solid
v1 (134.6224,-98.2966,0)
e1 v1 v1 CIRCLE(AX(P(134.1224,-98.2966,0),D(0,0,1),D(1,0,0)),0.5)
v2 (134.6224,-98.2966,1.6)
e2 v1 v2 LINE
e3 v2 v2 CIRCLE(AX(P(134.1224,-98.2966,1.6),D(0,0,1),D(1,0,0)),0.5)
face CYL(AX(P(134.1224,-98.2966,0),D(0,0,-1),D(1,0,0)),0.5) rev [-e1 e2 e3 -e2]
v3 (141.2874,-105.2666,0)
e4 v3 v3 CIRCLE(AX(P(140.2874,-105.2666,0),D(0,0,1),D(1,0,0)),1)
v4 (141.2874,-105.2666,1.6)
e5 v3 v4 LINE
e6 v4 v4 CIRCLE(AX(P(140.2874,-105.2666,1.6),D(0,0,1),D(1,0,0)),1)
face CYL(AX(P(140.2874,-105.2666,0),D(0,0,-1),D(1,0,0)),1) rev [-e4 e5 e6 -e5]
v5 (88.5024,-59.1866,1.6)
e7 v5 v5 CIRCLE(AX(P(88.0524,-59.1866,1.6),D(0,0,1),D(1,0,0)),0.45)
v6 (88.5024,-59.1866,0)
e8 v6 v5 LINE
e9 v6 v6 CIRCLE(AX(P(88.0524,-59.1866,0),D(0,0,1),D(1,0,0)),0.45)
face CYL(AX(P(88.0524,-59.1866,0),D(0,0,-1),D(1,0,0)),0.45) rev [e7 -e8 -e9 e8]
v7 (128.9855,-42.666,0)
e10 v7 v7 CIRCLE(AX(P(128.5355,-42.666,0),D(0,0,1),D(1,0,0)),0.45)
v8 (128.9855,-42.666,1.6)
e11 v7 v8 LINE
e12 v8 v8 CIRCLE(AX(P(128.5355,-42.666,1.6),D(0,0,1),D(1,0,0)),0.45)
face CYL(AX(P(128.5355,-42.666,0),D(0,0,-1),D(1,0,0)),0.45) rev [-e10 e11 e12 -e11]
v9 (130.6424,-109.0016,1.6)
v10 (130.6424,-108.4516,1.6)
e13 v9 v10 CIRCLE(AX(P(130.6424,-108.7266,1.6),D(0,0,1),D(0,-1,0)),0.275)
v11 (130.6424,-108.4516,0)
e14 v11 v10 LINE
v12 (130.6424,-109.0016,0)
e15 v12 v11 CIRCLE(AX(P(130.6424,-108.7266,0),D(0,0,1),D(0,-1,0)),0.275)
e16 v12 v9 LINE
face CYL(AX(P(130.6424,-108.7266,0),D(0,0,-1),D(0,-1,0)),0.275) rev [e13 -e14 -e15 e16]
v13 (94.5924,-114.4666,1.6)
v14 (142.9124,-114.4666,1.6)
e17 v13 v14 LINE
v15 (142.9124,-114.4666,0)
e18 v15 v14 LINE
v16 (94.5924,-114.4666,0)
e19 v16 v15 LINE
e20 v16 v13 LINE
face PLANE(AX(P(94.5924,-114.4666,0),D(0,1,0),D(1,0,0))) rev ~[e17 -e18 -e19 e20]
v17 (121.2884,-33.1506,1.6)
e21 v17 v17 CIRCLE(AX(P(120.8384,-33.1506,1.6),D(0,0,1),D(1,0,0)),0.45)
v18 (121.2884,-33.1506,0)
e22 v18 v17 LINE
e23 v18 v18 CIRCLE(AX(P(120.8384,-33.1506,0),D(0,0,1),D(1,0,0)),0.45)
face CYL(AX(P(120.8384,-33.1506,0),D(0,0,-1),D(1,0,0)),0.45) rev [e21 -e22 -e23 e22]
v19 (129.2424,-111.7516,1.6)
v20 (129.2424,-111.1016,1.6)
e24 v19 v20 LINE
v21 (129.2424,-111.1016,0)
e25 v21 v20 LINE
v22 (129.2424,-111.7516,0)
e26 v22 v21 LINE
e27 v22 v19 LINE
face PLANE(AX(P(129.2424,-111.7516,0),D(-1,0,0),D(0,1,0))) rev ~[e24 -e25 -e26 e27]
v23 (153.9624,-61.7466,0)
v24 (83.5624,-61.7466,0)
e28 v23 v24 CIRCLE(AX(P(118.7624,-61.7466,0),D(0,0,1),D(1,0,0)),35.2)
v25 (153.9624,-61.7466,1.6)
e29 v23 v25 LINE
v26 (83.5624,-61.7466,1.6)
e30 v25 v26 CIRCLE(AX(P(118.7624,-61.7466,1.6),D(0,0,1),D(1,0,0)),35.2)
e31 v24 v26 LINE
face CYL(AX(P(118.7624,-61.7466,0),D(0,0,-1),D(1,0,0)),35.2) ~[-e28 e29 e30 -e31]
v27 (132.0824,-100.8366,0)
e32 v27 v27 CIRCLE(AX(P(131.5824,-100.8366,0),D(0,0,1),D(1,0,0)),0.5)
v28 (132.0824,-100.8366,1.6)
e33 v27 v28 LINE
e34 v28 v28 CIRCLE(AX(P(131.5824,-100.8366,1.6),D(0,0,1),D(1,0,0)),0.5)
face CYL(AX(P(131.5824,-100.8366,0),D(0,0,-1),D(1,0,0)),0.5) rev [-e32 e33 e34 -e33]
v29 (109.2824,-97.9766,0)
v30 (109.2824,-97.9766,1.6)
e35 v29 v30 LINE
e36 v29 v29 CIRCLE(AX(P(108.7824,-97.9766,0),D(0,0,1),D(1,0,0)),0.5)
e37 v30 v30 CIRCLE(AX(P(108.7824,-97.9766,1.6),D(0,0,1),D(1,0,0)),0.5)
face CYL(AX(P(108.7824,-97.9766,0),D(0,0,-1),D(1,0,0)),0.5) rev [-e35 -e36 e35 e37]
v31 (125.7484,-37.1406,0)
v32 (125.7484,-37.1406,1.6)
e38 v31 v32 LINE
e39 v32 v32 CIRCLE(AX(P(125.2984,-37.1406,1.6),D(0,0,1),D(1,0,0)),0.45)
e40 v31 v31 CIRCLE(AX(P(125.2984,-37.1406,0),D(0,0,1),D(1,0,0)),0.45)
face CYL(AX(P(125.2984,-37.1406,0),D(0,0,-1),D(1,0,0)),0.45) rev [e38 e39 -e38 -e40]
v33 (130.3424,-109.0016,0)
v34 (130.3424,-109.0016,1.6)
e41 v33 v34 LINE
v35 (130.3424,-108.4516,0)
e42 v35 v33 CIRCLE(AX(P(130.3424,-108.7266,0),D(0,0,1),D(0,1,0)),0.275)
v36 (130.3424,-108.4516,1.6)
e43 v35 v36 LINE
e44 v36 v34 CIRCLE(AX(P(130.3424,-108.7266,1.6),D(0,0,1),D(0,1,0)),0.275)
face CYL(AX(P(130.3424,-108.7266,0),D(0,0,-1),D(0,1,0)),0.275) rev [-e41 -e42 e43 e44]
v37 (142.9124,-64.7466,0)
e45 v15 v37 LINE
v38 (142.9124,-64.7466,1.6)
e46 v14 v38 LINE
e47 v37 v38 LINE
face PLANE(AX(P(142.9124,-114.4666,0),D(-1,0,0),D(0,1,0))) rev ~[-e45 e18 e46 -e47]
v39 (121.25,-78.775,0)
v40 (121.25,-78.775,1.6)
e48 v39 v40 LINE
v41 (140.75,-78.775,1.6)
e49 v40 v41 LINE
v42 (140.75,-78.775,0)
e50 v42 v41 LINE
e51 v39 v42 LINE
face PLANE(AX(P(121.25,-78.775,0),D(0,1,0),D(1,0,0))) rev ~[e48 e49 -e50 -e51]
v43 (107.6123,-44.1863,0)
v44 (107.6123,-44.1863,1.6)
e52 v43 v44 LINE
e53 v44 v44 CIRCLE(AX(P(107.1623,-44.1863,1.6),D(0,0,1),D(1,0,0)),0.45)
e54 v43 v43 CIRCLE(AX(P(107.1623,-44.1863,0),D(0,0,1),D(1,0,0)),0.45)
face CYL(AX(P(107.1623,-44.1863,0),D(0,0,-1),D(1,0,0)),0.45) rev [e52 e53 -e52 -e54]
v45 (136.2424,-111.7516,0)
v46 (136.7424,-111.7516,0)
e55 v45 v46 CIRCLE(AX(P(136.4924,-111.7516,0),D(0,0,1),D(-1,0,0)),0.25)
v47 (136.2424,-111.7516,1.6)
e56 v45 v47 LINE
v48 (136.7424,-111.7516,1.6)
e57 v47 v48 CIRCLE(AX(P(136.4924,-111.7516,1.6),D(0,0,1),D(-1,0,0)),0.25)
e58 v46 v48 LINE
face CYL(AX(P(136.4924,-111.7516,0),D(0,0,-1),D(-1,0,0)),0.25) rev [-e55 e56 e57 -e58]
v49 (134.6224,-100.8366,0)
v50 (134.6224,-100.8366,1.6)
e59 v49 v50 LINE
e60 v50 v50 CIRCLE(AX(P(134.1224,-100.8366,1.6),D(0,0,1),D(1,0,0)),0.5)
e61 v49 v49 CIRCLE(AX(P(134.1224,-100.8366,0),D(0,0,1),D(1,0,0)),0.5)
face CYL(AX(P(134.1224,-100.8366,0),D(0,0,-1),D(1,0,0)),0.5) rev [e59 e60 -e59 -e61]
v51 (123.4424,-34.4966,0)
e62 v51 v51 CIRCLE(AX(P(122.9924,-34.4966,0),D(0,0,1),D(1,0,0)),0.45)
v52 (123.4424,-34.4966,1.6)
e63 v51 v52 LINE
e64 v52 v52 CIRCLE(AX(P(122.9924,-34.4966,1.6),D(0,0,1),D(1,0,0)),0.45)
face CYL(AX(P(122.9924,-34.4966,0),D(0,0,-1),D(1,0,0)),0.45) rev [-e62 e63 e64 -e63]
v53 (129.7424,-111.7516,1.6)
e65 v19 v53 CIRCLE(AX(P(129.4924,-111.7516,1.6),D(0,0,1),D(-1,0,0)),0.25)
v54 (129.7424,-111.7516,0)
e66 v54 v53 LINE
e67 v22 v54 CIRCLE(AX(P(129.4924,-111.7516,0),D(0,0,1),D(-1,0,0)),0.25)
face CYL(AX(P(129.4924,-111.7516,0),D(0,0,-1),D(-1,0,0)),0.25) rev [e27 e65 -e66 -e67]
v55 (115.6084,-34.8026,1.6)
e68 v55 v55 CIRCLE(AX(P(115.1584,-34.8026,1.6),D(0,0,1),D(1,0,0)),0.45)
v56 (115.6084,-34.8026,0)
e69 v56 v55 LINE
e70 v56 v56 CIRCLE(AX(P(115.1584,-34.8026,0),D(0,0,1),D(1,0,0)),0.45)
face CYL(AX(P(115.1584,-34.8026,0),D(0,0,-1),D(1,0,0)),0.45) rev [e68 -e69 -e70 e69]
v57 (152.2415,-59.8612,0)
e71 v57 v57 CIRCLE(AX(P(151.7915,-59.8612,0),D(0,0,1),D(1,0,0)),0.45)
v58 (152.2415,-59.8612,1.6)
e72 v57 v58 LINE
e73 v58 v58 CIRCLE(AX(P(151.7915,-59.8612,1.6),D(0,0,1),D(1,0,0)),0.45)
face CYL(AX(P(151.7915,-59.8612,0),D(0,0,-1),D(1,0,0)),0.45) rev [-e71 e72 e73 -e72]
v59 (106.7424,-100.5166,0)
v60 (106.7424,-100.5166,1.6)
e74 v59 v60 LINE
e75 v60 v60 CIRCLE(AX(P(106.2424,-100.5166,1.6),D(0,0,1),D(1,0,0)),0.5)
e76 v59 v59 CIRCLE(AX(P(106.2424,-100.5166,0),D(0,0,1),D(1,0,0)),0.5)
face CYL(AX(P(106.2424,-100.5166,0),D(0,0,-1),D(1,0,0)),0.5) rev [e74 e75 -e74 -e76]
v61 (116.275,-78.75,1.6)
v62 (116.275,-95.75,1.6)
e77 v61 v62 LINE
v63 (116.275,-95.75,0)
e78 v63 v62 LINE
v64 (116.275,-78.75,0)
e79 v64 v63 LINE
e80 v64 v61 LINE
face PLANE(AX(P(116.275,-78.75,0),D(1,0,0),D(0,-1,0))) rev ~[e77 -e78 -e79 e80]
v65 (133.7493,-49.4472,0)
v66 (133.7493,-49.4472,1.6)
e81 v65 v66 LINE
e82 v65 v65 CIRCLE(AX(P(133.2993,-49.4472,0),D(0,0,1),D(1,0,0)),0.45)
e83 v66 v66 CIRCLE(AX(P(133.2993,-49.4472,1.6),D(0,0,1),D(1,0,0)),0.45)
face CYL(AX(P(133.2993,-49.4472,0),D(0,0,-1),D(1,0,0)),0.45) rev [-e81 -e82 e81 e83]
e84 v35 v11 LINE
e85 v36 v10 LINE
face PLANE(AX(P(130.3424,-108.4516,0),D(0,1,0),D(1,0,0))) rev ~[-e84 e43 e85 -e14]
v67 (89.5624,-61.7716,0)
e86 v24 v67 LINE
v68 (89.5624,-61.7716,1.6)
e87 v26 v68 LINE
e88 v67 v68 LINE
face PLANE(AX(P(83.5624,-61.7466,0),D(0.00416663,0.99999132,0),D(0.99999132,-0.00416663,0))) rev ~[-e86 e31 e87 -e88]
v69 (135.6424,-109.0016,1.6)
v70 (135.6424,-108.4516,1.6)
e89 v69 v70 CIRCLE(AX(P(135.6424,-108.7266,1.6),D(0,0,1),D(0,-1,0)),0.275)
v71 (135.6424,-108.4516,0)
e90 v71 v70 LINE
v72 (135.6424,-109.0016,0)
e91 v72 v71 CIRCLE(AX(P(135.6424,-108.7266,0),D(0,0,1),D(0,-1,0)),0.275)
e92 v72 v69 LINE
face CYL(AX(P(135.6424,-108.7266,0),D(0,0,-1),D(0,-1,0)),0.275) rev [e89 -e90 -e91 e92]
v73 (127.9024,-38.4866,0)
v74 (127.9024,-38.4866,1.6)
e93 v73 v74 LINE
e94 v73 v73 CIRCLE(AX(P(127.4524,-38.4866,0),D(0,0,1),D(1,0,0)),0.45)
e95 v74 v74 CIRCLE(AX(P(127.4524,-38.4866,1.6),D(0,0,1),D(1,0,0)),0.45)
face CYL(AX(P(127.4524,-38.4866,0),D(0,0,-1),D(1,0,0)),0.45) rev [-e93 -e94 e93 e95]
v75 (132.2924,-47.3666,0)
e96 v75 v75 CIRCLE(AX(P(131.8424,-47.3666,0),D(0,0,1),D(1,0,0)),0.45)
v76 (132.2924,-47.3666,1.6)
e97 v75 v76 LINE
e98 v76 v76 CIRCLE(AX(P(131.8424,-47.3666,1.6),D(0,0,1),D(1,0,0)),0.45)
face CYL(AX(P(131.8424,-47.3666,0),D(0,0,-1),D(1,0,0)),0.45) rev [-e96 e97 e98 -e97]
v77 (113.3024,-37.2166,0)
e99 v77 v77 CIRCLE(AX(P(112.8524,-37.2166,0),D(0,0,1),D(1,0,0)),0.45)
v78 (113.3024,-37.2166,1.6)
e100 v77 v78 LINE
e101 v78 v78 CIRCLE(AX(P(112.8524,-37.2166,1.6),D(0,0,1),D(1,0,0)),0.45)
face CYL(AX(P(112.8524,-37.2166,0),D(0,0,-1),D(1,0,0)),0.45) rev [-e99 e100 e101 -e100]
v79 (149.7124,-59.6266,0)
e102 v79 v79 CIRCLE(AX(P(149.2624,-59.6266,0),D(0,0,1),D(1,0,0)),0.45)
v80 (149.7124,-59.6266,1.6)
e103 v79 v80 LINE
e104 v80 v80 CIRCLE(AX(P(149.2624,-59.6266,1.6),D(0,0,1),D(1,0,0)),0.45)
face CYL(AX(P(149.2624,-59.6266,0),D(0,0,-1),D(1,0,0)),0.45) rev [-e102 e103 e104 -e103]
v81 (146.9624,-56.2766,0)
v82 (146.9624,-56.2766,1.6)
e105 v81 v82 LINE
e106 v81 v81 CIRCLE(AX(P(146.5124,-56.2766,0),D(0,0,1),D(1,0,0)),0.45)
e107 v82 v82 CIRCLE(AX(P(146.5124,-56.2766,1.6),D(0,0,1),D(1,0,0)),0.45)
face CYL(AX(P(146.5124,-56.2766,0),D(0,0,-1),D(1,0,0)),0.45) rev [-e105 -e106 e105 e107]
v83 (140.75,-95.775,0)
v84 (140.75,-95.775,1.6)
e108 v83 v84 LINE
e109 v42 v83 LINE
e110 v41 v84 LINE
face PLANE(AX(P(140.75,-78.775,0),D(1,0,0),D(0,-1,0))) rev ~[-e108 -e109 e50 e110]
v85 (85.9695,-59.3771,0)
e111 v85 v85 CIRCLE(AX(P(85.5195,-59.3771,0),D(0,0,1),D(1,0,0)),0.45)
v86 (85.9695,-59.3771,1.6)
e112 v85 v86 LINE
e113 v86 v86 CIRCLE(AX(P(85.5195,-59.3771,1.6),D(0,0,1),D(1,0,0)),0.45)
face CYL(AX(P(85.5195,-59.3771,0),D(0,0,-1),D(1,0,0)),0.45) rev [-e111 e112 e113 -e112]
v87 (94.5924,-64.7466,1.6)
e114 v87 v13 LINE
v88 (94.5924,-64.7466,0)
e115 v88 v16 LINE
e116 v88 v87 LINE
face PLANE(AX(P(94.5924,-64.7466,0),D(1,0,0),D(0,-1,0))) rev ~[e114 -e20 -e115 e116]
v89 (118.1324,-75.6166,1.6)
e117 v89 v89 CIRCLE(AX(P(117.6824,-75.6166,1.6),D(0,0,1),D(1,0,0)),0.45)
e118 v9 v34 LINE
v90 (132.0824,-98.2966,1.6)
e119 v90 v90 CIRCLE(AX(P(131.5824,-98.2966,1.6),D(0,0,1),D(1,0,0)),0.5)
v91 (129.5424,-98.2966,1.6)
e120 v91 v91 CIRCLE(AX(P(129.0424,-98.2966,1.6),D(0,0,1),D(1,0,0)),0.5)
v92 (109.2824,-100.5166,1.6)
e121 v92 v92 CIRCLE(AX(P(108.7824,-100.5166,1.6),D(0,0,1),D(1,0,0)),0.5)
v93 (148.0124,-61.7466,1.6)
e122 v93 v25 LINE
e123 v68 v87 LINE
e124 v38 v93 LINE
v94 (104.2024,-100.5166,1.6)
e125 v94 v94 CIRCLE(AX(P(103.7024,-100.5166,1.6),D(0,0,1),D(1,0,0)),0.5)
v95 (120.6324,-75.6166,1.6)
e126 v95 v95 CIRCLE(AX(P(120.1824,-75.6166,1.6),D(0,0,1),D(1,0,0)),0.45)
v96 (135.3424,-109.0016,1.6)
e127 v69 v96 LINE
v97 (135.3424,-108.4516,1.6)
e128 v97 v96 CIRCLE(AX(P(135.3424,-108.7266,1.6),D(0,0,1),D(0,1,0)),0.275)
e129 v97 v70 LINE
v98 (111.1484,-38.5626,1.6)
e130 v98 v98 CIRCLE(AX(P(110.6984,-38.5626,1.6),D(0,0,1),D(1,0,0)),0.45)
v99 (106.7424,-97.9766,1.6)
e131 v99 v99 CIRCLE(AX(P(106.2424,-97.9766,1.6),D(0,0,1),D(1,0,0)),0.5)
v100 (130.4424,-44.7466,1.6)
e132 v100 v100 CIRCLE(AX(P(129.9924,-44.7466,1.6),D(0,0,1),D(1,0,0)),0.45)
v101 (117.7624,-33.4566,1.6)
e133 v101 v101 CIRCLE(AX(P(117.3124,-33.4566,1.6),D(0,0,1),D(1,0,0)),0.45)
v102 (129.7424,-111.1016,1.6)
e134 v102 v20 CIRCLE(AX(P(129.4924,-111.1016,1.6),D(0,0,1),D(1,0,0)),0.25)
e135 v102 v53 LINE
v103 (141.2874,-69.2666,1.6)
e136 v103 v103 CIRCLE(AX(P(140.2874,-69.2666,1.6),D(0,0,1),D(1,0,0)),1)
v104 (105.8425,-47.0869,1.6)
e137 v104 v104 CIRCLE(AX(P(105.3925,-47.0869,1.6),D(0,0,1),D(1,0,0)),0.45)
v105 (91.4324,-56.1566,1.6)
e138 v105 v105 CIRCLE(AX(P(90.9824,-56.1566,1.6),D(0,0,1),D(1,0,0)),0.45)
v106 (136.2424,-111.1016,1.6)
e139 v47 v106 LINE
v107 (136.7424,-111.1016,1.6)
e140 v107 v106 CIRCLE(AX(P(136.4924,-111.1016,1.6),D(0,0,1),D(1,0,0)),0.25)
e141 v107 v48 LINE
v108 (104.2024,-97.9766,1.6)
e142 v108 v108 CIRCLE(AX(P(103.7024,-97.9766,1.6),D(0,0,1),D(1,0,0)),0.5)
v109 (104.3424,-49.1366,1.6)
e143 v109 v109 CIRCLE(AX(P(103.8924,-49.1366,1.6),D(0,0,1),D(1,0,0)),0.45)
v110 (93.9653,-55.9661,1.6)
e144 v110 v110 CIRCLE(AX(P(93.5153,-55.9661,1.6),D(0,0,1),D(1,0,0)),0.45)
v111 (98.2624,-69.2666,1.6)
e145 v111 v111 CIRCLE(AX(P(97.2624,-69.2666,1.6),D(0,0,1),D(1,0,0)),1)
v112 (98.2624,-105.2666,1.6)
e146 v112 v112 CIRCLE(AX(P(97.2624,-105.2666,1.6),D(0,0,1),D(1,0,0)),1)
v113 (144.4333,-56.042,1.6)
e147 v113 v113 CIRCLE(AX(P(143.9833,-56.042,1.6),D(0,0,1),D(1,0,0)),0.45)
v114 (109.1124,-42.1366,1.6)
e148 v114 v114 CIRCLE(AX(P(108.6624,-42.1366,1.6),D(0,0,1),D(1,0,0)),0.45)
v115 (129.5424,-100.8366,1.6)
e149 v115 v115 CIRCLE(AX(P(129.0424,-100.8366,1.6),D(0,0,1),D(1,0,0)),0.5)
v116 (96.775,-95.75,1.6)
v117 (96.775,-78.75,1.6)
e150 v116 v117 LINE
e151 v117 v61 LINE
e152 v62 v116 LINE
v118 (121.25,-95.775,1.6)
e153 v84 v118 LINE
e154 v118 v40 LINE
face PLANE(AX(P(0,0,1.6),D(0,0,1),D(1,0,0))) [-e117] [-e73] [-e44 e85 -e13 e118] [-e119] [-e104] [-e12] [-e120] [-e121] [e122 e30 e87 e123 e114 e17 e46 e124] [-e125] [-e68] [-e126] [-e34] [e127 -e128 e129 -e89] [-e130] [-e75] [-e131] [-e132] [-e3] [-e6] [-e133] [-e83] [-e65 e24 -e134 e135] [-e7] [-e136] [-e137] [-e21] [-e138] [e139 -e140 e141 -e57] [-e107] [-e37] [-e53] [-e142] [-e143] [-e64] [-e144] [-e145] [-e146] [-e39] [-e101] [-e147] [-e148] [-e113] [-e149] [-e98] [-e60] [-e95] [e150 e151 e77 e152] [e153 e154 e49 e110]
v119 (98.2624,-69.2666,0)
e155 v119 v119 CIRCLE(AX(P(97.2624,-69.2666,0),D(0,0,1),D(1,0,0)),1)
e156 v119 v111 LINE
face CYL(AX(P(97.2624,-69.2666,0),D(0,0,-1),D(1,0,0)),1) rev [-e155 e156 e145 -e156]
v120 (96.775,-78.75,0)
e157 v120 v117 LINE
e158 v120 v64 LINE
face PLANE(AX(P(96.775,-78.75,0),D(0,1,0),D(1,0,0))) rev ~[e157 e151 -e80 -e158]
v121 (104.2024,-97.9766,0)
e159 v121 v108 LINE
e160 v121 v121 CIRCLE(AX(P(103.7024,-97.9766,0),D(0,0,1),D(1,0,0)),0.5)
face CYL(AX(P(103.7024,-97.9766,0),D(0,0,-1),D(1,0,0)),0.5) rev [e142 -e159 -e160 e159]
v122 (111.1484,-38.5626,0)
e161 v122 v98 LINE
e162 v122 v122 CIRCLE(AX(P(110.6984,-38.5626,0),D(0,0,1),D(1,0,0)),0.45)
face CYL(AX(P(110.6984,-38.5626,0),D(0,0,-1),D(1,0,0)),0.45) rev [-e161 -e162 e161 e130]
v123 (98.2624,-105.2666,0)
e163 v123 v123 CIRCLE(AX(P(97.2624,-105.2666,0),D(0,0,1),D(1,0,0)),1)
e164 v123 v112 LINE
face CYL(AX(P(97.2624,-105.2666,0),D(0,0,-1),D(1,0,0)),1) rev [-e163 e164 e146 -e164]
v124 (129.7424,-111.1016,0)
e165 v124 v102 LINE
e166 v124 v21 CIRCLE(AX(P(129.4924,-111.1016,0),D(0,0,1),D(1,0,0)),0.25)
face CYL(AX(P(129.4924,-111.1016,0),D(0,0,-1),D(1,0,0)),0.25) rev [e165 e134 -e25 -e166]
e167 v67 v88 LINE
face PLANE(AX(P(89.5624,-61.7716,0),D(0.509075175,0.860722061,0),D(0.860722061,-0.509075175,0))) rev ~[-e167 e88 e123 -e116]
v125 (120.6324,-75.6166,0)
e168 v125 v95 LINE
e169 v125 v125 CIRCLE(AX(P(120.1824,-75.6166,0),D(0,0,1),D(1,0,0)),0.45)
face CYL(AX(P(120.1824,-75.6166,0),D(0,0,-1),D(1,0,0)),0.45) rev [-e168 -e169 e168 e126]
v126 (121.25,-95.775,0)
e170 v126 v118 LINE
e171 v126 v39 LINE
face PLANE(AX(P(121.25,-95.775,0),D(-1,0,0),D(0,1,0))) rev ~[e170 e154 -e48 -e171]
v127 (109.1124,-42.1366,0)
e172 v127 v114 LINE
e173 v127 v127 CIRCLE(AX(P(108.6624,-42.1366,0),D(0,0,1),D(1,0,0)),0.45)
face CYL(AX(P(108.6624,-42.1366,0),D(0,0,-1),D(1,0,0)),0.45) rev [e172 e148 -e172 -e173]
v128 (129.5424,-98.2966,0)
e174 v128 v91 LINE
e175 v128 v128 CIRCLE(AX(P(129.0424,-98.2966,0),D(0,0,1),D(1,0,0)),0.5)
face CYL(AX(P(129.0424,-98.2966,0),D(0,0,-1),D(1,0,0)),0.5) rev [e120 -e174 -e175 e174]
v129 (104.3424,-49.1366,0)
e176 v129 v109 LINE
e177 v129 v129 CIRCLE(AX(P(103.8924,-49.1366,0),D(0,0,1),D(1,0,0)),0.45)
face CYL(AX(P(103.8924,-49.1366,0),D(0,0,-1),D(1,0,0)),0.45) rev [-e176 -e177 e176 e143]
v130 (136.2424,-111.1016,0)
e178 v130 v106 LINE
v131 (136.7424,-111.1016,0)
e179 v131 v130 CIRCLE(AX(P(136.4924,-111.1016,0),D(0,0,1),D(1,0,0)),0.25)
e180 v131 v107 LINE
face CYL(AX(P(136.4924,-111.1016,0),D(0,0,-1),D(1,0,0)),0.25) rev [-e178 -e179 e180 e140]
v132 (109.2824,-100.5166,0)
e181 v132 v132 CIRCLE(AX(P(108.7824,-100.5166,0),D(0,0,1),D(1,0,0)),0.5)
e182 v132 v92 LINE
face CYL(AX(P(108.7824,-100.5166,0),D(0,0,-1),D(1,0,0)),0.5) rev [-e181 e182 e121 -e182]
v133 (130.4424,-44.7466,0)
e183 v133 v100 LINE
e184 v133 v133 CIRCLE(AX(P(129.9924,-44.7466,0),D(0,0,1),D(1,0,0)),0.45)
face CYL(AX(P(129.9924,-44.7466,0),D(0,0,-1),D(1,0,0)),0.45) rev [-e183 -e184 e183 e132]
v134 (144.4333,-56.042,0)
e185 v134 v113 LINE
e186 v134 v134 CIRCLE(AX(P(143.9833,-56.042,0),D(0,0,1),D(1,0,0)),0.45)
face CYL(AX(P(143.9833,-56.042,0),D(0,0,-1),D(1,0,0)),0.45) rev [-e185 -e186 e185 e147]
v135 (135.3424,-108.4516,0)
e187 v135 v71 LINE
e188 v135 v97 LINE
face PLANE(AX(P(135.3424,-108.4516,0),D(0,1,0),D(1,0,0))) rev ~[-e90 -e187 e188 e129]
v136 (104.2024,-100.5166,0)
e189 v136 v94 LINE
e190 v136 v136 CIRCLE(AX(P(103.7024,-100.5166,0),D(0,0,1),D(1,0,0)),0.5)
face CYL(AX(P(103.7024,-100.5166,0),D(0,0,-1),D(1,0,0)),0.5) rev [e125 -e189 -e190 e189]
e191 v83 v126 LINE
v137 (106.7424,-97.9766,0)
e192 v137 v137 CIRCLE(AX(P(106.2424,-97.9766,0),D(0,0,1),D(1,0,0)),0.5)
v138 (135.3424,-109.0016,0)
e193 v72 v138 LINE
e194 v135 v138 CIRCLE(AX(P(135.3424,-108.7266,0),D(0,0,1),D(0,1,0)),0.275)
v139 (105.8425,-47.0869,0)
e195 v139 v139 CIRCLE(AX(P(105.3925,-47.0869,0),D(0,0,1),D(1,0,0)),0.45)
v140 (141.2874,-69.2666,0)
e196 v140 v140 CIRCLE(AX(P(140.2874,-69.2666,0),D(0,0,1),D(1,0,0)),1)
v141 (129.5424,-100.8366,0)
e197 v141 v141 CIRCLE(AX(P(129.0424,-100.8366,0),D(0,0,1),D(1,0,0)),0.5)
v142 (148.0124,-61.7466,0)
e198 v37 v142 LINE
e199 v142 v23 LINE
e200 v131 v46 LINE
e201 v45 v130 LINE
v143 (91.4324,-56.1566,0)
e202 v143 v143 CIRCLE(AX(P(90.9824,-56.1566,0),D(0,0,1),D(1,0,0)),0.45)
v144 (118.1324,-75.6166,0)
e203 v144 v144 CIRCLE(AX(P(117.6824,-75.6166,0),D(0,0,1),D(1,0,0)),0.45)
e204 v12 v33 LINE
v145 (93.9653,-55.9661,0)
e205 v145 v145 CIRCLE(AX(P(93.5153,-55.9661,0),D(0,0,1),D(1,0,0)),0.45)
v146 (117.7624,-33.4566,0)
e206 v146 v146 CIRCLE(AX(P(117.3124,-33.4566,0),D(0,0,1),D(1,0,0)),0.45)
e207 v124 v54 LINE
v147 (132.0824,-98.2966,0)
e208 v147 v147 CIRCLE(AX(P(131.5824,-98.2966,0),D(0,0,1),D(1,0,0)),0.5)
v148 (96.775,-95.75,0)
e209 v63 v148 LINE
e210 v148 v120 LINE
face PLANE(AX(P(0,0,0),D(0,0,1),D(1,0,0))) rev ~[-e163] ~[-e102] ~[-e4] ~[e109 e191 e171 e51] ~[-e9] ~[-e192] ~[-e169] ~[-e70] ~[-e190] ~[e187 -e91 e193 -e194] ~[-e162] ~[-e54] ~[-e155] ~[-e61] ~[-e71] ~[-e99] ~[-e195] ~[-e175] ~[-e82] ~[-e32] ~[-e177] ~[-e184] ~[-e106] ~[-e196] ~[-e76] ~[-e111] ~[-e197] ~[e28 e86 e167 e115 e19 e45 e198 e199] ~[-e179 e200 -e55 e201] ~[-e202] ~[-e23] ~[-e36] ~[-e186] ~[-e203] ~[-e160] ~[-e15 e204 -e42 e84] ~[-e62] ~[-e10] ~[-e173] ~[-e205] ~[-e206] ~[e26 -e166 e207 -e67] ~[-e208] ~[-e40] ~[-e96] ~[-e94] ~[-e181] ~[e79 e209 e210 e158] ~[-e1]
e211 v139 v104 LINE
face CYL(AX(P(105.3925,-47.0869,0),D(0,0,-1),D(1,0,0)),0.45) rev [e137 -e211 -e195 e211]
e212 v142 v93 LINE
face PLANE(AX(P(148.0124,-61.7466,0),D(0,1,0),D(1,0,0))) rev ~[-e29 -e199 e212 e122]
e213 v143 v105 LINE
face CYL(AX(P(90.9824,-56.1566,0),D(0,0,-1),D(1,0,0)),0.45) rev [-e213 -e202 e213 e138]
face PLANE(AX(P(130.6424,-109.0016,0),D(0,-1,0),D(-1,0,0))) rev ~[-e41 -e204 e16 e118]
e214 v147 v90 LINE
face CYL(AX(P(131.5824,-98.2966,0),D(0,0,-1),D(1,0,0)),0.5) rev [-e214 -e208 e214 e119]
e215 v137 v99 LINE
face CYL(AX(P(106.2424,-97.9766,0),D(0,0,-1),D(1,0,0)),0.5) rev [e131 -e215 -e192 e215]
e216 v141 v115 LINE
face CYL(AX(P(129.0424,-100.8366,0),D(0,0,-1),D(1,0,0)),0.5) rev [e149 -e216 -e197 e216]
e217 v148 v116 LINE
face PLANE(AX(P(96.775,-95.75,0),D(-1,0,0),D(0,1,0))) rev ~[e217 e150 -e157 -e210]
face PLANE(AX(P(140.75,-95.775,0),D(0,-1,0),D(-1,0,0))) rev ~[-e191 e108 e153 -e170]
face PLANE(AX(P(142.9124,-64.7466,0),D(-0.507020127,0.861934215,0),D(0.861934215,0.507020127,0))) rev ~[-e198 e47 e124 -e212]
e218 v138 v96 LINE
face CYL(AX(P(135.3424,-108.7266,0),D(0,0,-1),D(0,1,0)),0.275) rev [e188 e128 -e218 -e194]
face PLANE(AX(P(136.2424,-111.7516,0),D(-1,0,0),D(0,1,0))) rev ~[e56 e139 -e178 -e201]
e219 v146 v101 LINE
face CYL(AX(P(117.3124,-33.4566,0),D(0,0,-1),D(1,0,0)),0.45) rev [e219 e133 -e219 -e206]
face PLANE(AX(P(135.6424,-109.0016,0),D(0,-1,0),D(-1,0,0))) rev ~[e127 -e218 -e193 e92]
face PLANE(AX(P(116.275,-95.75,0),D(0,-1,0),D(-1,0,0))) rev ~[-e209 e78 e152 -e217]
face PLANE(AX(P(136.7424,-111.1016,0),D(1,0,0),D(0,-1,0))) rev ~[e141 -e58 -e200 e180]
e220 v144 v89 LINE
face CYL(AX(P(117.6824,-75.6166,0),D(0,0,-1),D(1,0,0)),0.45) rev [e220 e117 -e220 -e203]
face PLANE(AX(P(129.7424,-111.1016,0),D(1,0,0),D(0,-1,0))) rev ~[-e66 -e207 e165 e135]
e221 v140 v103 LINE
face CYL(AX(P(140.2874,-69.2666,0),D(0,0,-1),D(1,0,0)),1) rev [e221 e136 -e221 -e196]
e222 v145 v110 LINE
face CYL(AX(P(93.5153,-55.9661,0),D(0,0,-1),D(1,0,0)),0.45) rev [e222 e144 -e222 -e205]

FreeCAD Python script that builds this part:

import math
import FreeCAD as App
import Part
import Sketcher

V = App.Vector

doc = App.newDocument("Part")
body = doc.addObject("PartDesign::Body", "Body")
body.AllowCompound = True

# Sketch on XY plane
sketch1 = body.newObject("Sketcher::SketchObject", "Sketch")
sketch1.AttachmentSupport = (doc.getObject("XY_Plane"), [""])
sketch1.MapMode = "FlatFace"
sketch1.addGeometry([
    Part.ArcOfCircle(Part.Circle(V(118.76, -61.75, 0), V(0, 0, 1), 35.2), math.radians(0), math.radians(180)),  # 0
    Part.LineSegment(V(83.56, -61.75, 0), V(89.56, -61.77, 0)),  # 1
    Part.LineSegment(V(89.56, -61.77, 0), V(94.59, -64.75, 0)),  # 2
    Part.LineSegment(V(94.59, -64.75, 0), V(94.59, -114.47, 0)),  # 3
    Part.LineSegment(V(94.59, -114.47, 0), V(142.91, -114.47, 0)),  # 4
    Part.LineSegment(V(142.91, -114.47, 0), V(142.91, -64.75, 0)),  # 5
    Part.LineSegment(V(142.91, -64.75, 0), V(148.01, -61.75, 0)),  # 6
    Part.LineSegment(V(148.01, -61.75, 0), V(153.96, -61.75, 0)),  # 7
    Part.Circle(V(97.26, -105.27, 0), V(0, 0, 1), 1),  # 8
    Part.Circle(V(103.7, -100.52, 0), V(0, 0, 1), 0.5),  # 9
    Part.Circle(V(106.24, -100.52, 0), V(0, 0, 1), 0.5),  # 10
    Part.Circle(V(108.78, -100.52, 0), V(0, 0, 1), 0.5),  # 11
    Part.ArcOfCircle(Part.Circle(V(129.49, -111.1, 0), V(0, 0, 1), 0.25), math.radians(0), math.radians(180)),  # 12
    Part.LineSegment(V(129.74, -111.1, 0), V(129.74, -111.75, 0)),  # 13
    Part.ArcOfCircle(Part.Circle(V(129.49, -111.75, 0), V(0, 0, 1), 0.25), math.radians(180), math.radians(360)),  # 14
    Part.LineSegment(V(129.24, -111.75, 0), V(129.24, -111.1, 0)),  # 15
    Part.ArcOfCircle(Part.Circle(V(136.49, -111.1, 0), V(0, 0, 1), 0.25), math.radians(0), math.radians(180)),  # 16
    Part.LineSegment(V(136.74, -111.1, 0), V(136.74, -111.75, 0)),  # 17
    Part.ArcOfCircle(Part.Circle(V(136.49, -111.75, 0), V(0, 0, 1), 0.25), math.radians(180), math.radians(360)),  # 18
    Part.LineSegment(V(136.24, -111.75, 0), V(136.24, -111.1, 0)),  # 19
    Part.ArcOfCircle(Part.Circle(V(130.34, -108.73, 0), V(0, 0, 1), 0.28), math.radians(90), math.radians(270)),  # 20
    Part.LineSegment(V(130.34, -108.45, 0), V(130.64, -108.45, 0)),  # 21
    Part.ArcOfCircle(Part.Circle(V(130.64, -108.73, 0), V(0, 0, 1), 0.27), math.radians(-90), math.radians(90)),  # 22
    Part.LineSegment(V(130.64, -109, 0), V(130.34, -109, 0)),  # 23
    Part.ArcOfCircle(Part.Circle(V(135.34, -108.73, 0), V(0, 0, 1), 0.28), math.radians(90), math.radians(270)),  # 24
    Part.LineSegment(V(135.34, -108.45, 0), V(135.64, -108.45, 0)),  # 25
    Part.ArcOfCircle(Part.Circle(V(135.64, -108.73, 0), V(0, 0, 1), 0.27), math.radians(-90), math.radians(90)),  # 26
    Part.LineSegment(V(135.64, -109, 0), V(135.34, -109, 0)),  # 27
    Part.Circle(V(129.04, -100.84, 0), V(0, 0, 1), 0.5),  # 28
    Part.Circle(V(131.58, -100.84, 0), V(0, 0, 1), 0.5),  # 29
    Part.Circle(V(134.12, -100.84, 0), V(0, 0, 1), 0.5),  # 30
    Part.Circle(V(140.29, -105.27, 0), V(0, 0, 1), 1),  # 31
    Part.Circle(V(103.7, -97.98, 0), V(0, 0, 1), 0.5),  # 32
    Part.Circle(V(106.24, -97.98, 0), V(0, 0, 1), 0.5),  # 33
    Part.Circle(V(108.78, -97.98, 0), V(0, 0, 1), 0.5),  # 34
    Part.LineSegment(V(116.28, -95.75, 0), V(96.78, -95.75, 0)),  # 35
    Part.LineSegment(V(96.78, -95.75, 0), V(96.78, -78.75, 0)),  # 36
    Part.LineSegment(V(96.78, -78.75, 0), V(116.28, -78.75, 0)),  # 37
    Part.LineSegment(V(116.28, -78.75, 0), V(116.28, -95.75, 0)),  # 38
    Part.Circle(V(129.04, -98.3, 0), V(0, 0, 1), 0.5),  # 39
    Part.Circle(V(131.58, -98.3, 0), V(0, 0, 1), 0.5),  # 40
    Part.Circle(V(134.12, -98.3, 0), V(0, 0, 1), 0.5),  # 41
    Part.LineSegment(V(140.75, -95.78, 0), V(121.25, -95.78, 0)),  # 42
    Part.LineSegment(V(121.25, -95.78, 0), V(121.25, -78.78, 0)),  # 43
    Part.LineSegment(V(121.25, -78.78, 0), V(140.75, -78.78, 0)),  # 44
    Part.LineSegment(V(140.75, -78.78, 0), V(140.75, -95.78, 0)),  # 45
    Part.Circle(V(85.52, -59.38, 0), V(0, 0, 1), 0.45),  # 46
    Part.Circle(V(97.26, -69.27, 0), V(0, 0, 1), 1),  # 47
    Part.Circle(V(117.68, -75.62, 0), V(0, 0, 1), 0.45),  # 48
    Part.Circle(V(88.05, -59.19, 0), V(0, 0, 1), 0.45),  # 49
    Part.Circle(V(90.98, -56.16, 0), V(0, 0, 1), 0.45),  # 50
    Part.Circle(V(93.52, -55.97, 0), V(0, 0, 1), 0.45),  # 51
    Part.Circle(V(120.18, -75.62, 0), V(0, 0, 1), 0.45),  # 52
    Part.Circle(V(140.29, -69.27, 0), V(0, 0, 1), 1),  # 53
    Part.Circle(V(149.26, -59.63, 0), V(0, 0, 1), 0.45),  # 54
    Part.Circle(V(151.79, -59.86, 0), V(0, 0, 1), 0.45),  # 55
    Part.Circle(V(143.98, -56.04, 0), V(0, 0, 1), 0.45),  # 56
    Part.Circle(V(146.51, -56.28, 0), V(0, 0, 1), 0.45),  # 57
    Part.Circle(V(103.89, -49.14, 0), V(0, 0, 1), 0.45),  # 58
    Part.Circle(V(105.39, -47.09, 0), V(0, 0, 1), 0.45),  # 59
    Part.Circle(V(107.16, -44.19, 0), V(0, 0, 1), 0.45),  # 60
    Part.Circle(V(108.66, -42.14, 0), V(0, 0, 1), 0.45),  # 61
    Part.Circle(V(110.7, -38.56, 0), V(0, 0, 1), 0.45),  # 62
    Part.Circle(V(112.85, -37.22, 0), V(0, 0, 1), 0.45),  # 63
    Part.Circle(V(115.16, -34.8, 0), V(0, 0, 1), 0.45),  # 64
    Part.Circle(V(117.31, -33.46, 0), V(0, 0, 1), 0.45),  # 65
    Part.Circle(V(133.3, -49.45, 0), V(0, 0, 1), 0.45),  # 66
    Part.Circle(V(131.84, -47.37, 0), V(0, 0, 1), 0.45),  # 67
    Part.Circle(V(129.99, -44.75, 0), V(0, 0, 1), 0.45),  # 68
    Part.Circle(V(128.54, -42.67, 0), V(0, 0, 1), 0.45),  # 69
    Part.Circle(V(127.45, -38.49, 0), V(0, 0, 1), 0.45),  # 70
    Part.Circle(V(125.3, -37.14, 0), V(0, 0, 1), 0.45),  # 71
    Part.Circle(V(122.99, -34.5, 0), V(0, 0, 1), 0.45),  # 72
    Part.Circle(V(120.84, -33.15, 0), V(0, 0, 1), 0.45),  # 73
    Part.Circle(V(25.53, -58.59, 0), V(0, 0, 1), 0.5),  # 74
    Part.Circle(V(22.99, -58.59, 0), V(0, 0, 1), 0.5),  # 75
    Part.Circle(V(20.45, -58.59, 0), V(0, 0, 1), 0.5),  # 76
    Part.Circle(V(17.91, -58.59, 0), V(0, 0, 1), 0.5),  # 77
    Part.Circle(V(121.76, -124.47, 0), V(0, 0, 1), 0.38),  # 78
    Part.Circle(V(118.76, -124.47, 0), V(0, 0, 1), 0.38),  # 79
    Part.Circle(V(115.76, -124.47, 0), V(0, 0, 1), 0.38),  # 80
], False)
sketch1.addConstraint([
    Sketcher.Constraint("Coincident", 0, 2, 1, 1),
    Sketcher.Constraint("Coincident", 1, 2, 2, 1),
    Sketcher.Constraint("Coincident", 2, 2, 3, 1),
    Sketcher.Constraint("Coincident", 3, 2, 4, 1),
    Sketcher.Constraint("Coincident", 4, 2, 5, 1),
    Sketcher.Constraint("Coincident", 5, 2, 6, 1),
    Sketcher.Constraint("Coincident", 6, 2, 7, 1),
    Sketcher.Constraint("Coincident", 7, 2, 0, 1),
    Sketcher.Constraint("Tangent", 12, 1, 13, 1),
    Sketcher.Constraint("Tangent", 13, 2, 14, 2),
    Sketcher.Constraint("Tangent", 14, 1, 15, 1),
    Sketcher.Constraint("Tangent", 15, 2, 12, 2),
    Sketcher.Constraint("Tangent", 16, 1, 17, 1),
    Sketcher.Constraint("Tangent", 17, 2, 18, 2),
    Sketcher.Constraint("Tangent", 18, 1, 19, 1),
    Sketcher.Constraint("Tangent", 19, 2, 16, 2),
    Sketcher.Constraint("Tangent", 20, 1, 21, 1),
    Sketcher.Constraint("Tangent", 21, 2, 22, 2),
    Sketcher.Constraint("Tangent", 22, 1, 23, 1),
    Sketcher.Constraint("Tangent", 23, 2, 20, 2),
    Sketcher.Constraint("Tangent", 24, 1, 25, 1),
    Sketcher.Constraint("Tangent", 25, 2, 26, 2),
    Sketcher.Constraint("Tangent", 26, 1, 27, 1),
    Sketcher.Constraint("Tangent", 27, 2, 24, 2),
    Sketcher.Constraint("Coincident", 35, 2, 36, 1),
    Sketcher.Constraint("Coincident", 36, 2, 37, 1),
    Sketcher.Constraint("Coincident", 37, 2, 38, 1),
    Sketcher.Constraint("Coincident", 38, 2, 35, 1),
    Sketcher.Constraint("Coincident", 42, 2, 43, 1),
    Sketcher.Constraint("Coincident", 43, 2, 44, 1),
    Sketcher.Constraint("Coincident", 44, 2, 45, 1),
    Sketcher.Constraint("Coincident", 45, 2, 42, 1),
    Sketcher.Constraint("Vertical", 3),
    Sketcher.Constraint("Horizontal", 4),
    Sketcher.Constraint("Vertical", 5),
    Sketcher.Constraint("Horizontal", 7),
    Sketcher.Constraint("Vertical", 13),
    Sketcher.Constraint("Vertical", 15),
    Sketcher.Constraint("Vertical", 17),
    Sketcher.Constraint("Vertical", 19),
    Sketcher.Constraint("Horizontal", 21),
    Sketcher.Constraint("Horizontal", 23),
    Sketcher.Constraint("Horizontal", 25),
    Sketcher.Constraint("Horizontal", 27),
    Sketcher.Constraint("Horizontal", 35),
    Sketcher.Constraint("Vertical", 36),
    Sketcher.Constraint("Horizontal", 37),
    Sketcher.Constraint("Vertical", 38),
    Sketcher.Constraint("Horizontal", 42),
    Sketcher.Constraint("Vertical", 43),
    Sketcher.Constraint("Horizontal", 44),
    Sketcher.Constraint("Vertical", 45),
    Sketcher.Constraint("Equal", 9, 10),
    Sketcher.Constraint("Equal", 10, 11),
    Sketcher.Constraint("Equal", 14, 16),
    Sketcher.Constraint("Equal", 22, 24),
    Sketcher.Constraint("Equal", 11, 28),
    Sketcher.Constraint("Equal", 28, 29),
    Sketcher.Constraint("Equal", 29, 30),
    Sketcher.Constraint("Equal", 8, 31),
    Sketcher.Constraint("Equal", 30, 32),
    Sketcher.Constraint("Equal", 32, 33),
    Sketcher.Constraint("Equal", 33, 34),
    Sketcher.Constraint("Equal", 34, 39),
    Sketcher.Constraint("Equal", 39, 40),
    Sketcher.Constraint("Equal", 40, 41),
    Sketcher.Constraint("Equal", 31, 47),
    Sketcher.Constraint("Equal", 46, 48),
    Sketcher.Constraint("Equal", 48, 49),
    Sketcher.Constraint("Equal", 49, 50),
    Sketcher.Constraint("Equal", 50, 51),
    Sketcher.Constraint("Equal", 51, 52),
    Sketcher.Constraint("Equal", 47, 53),
    Sketcher.Constraint("Equal", 52, 54),
    Sketcher.Constraint("Equal", 54, 55),
    Sketcher.Constraint("Equal", 55, 56),
    Sketcher.Constraint("Equal", 56, 57),
    Sketcher.Constraint("Equal", 57, 58),
    Sketcher.Constraint("Equal", 58, 59),
    Sketcher.Constraint("Equal", 59, 60),
    Sketcher.Constraint("Equal", 60, 61),
    Sketcher.Constraint("Equal", 61, 62),
    Sketcher.Constraint("Equal", 62, 63),
    Sketcher.Constraint("Equal", 63, 64),
    Sketcher.Constraint("Equal", 64, 65),
    Sketcher.Constraint("Equal", 65, 66),
    Sketcher.Constraint("Equal", 66, 67),
    Sketcher.Constraint("Equal", 67, 68),
    Sketcher.Constraint("Equal", 68, 69),
    Sketcher.Constraint("Equal", 69, 70),
    Sketcher.Constraint("Equal", 70, 71),
    Sketcher.Constraint("Equal", 71, 72),
    Sketcher.Constraint("Equal", 72, 73),
    Sketcher.Constraint("Equal", 41, 74),
    Sketcher.Constraint("Equal", 74, 75),
    Sketcher.Constraint("Equal", 75, 76),
    Sketcher.Constraint("Equal", 76, 77),
    Sketcher.Constraint("Equal", 78, 79),
    Sketcher.Constraint("Equal", 79, 80),
    Sketcher.Constraint("Horizontal", 9, 3, 10, 3),
    Sketcher.Constraint("Horizontal", 10, 3, 11, 3),
    Sketcher.Constraint("Horizontal", 12, 3, 16, 3),
    Sketcher.Constraint("Horizontal", 14, 3, 18, 3),
    Sketcher.Constraint("Horizontal", 22, 3, 24, 3),
    Sketcher.Constraint("Horizontal", 28, 3, 29, 3),
    Sketcher.Constraint("Horizontal", 29, 3, 30, 3),
    Sketcher.Constraint("Horizontal", 8, 3, 31, 3),
    Sketcher.Constraint("Horizontal", 32, 3, 33, 3),
    Sketcher.Constraint("Horizontal", 33, 3, 34, 3),
    Sketcher.Constraint("Horizontal", 39, 3, 40, 3),
    Sketcher.Constraint("Horizontal", 40, 3, 41, 3),
    Sketcher.Constraint("Horizontal", 48, 3, 52, 3),
    Sketcher.Constraint("Horizontal", 47, 3, 53, 3),
    Sketcher.Constraint("Horizontal", 74, 3, 75, 3),
    Sketcher.Constraint("Horizontal", 75, 3, 76, 3),
    Sketcher.Constraint("Horizontal", 76, 3, 77, 3),
    Sketcher.Constraint("Horizontal", 78, 3, 79, 3),
    Sketcher.Constraint("Horizontal", 79, 3, 80, 3),
    Sketcher.Constraint("Horizontal", 2, 2, 5, 2),
    Sketcher.Constraint("Horizontal", 0, 2, 6, 2),
    Sketcher.Constraint("Vertical", 9, 3, 32, 3),
    Sketcher.Constraint("Vertical", 10, 3, 33, 3),
    Sketcher.Constraint("Vertical", 11, 3, 34, 3),
    Sketcher.Constraint("Vertical", 28, 3, 39, 3),
    Sketcher.Constraint("Vertical", 29, 3, 40, 3),
    Sketcher.Constraint("Vertical", 30, 3, 41, 3),
    Sketcher.Constraint("Vertical", 8, 3, 47, 3),
    Sketcher.Constraint("Vertical", 31, 3, 53, 3),
    Sketcher.Constraint("Vertical", 0, 3, 79, 3),
    Sketcher.Constraint("Equal", 23, 25),
    Sketcher.Constraint("Equal", 37, 42),
    Sketcher.Constraint("Equal", 38, 43),
    Sketcher.Constraint("Diameter", 8, 2.0),
    Sketcher.Constraint("Diameter", 9, 1.0),
    Sketcher.Constraint("Diameter", 46, 0.9),
    Sketcher.Constraint("Radius", 0, 35.2),
    Sketcher.Constraint("DistanceY", 36, 1, 36, 2, 17.0),
    Sketcher.Constraint("Radius", 12, 0.25),
    Sketcher.Constraint("Distance", 1, 6.0),
    Sketcher.Constraint("Diameter", 78, 0.762),
    Sketcher.Constraint("DistanceX", 21, 1, 21, 2, 0.3),
    Sketcher.Constraint("DistanceX", 35, 2, 35, 1, 19.5),
    Sketcher.Constraint("Radius", 20, 0.275),
    Sketcher.Constraint("DistanceX", 4, 1, 4, 2, 48.32),
    Sketcher.Constraint("DistanceX", 7, 1, 7, 2, 5.95),
    Sketcher.Constraint("DistanceY", 3, 2, 3, 1, 49.72),
    Sketcher.Constraint("DistanceY", 13, 2, 13, 1, 0.65),
    Sketcher.Constraint("DistanceY", 35, 2, -1, 1, 95.75),
    Sketcher.Constraint("DistanceX", -1, 1, 42, 2, 121.25),
    Sketcher.Constraint("Distance", 2, 5.844),
    Sketcher.Constraint("Distance", 6, 5.917),
    Sketcher.Constraint("DistanceY", 46, 3, -1, 1, 59.377),
    Sketcher.Constraint("DistanceY", 51, 3, -1, 1, 55.966),
    Sketcher.Constraint("DistanceY", 56, 3, -1, 1, 56.042),
    Sketcher.Constraint("DistanceY", 59, 3, -1, 1, 47.087),
    Sketcher.Constraint("DistanceY", 69, 3, -1, 1, 42.666),
    Sketcher.Constraint("DistanceX", -1, 1, 35, 2, 96.775),
    Sketcher.Constraint("DistanceY", 42, 2, -1, 1, 95.775),
    Sketcher.Constraint("DistanceX", -1, 1, 0, 3, 118.7624),
    Sketcher.Constraint("DistanceY", 0, 3, -1, 1, 61.7466),
    Sketcher.Constraint("DistanceX", -1, 1, 8, 3, 97.2624),
    Sketcher.Constraint("DistanceY", 8, 3, -1, 1, 105.2666),
    Sketcher.Constraint("DistanceX", -1, 1, 9, 3, 103.7024),
    Sketcher.Constraint("DistanceY", 9, 3, -1, 1, 100.5166),
    Sketcher.Constraint("DistanceX", -1, 1, 10, 3, 106.2424),
    Sketcher.Constraint("DistanceX", -1, 1, 11, 3, 108.7824),
    Sketcher.Constraint("DistanceX", -1, 1, 12, 3, 129.4924),
    Sketcher.Constraint("DistanceY", 12, 3, -1, 1, 111.1016),
    Sketcher.Constraint("DistanceX", -1, 1, 16, 3, 136.4924),
    Sketcher.Constraint("DistanceX", -1, 1, 20, 3, 130.3424),
    Sketcher.Constraint("DistanceY", 20, 3, -1, 1, 108.7266),
    Sketcher.Constraint("DistanceX", -1, 1, 24, 3, 135.3424),
    Sketcher.Constraint("DistanceX", -1, 1, 28, 3, 129.0424),
    Sketcher.Constraint("DistanceY", 28, 3, -1, 1, 100.8366),
    Sketcher.Constraint("DistanceX", -1, 1, 29, 3, 131.5824),
    Sketcher.Constraint("DistanceX", -1, 1, 30, 3, 134.1224),
    Sketcher.Constraint("DistanceX", -1, 1, 31, 3, 140.2874),
    Sketcher.Constraint("DistanceY", 32, 3, -1, 1, 97.9766),
    Sketcher.Constraint("DistanceY", 39, 3, -1, 1, 98.2966),
    Sketcher.Constraint("DistanceX", -1, 1, 46, 3, 85.5195),
    Sketcher.Constraint("DistanceY", 47, 3, -1, 1, 69.2666),
    Sketcher.Constraint("DistanceX", -1, 1, 48, 3, 117.6824),
    Sketcher.Constraint("DistanceY", 48, 3, -1, 1, 75.6166),
    Sketcher.Constraint("DistanceX", -1, 1, 49, 3, 88.0524),
    Sketcher.Constraint("DistanceY", 49, 3, -1, 1, 59.1866),
    Sketcher.Constraint("DistanceX", -1, 1, 50, 3, 90.9824),
    Sketcher.Constraint("DistanceY", 50, 3, -1, 1, 56.1566),
    Sketcher.Constraint("DistanceX", -1, 1, 51, 3, 93.5153),
    Sketcher.Constraint("DistanceX", -1, 1, 52, 3, 120.1824),
    Sketcher.Constraint("DistanceX", -1, 1, 54, 3, 149.2624),
    Sketcher.Constraint("DistanceY", 54, 3, -1, 1, 59.6266),
    Sketcher.Constraint("DistanceX", -1, 1, 55, 3, 151.7915),
    Sketcher.Constraint("DistanceY", 55, 3, -1, 1, 59.8612),
    Sketcher.Constraint("DistanceX", -1, 1, 56, 3, 143.9833),
    Sketcher.Constraint("DistanceX", -1, 1, 57, 3, 146.5124),
    Sketcher.Constraint("DistanceY", 57, 3, -1, 1, 56.2766),
    Sketcher.Constraint("DistanceX", -1, 1, 58, 3, 103.8924),
    Sketcher.Constraint("DistanceY", 58, 3, -1, 1, 49.1366),
    Sketcher.Constraint("DistanceX", -1, 1, 59, 3, 105.3925),
    Sketcher.Constraint("DistanceX", -1, 1, 60, 3, 107.1623),
    Sketcher.Constraint("DistanceY", 60, 3, -1, 1, 44.1863),
    Sketcher.Constraint("DistanceX", -1, 1, 61, 3, 108.6624),
    Sketcher.Constraint("DistanceY", 61, 3, -1, 1, 42.1366),
    Sketcher.Constraint("DistanceX", -1, 1, 62, 3, 110.6984),
    Sketcher.Constraint("DistanceY", 62, 3, -1, 1, 38.5626),
    Sketcher.Constraint("DistanceX", -1, 1, 63, 3, 112.8524),
    Sketcher.Constraint("DistanceY", 63, 3, -1, 1, 37.2166),
    Sketcher.Constraint("DistanceX", -1, 1, 64, 3, 115.1584),
    Sketcher.Constraint("DistanceY", 64, 3, -1, 1, 34.8026),
    Sketcher.Constraint("DistanceX", -1, 1, 65, 3, 117.3124),
    Sketcher.Constraint("DistanceY", 65, 3, -1, 1, 33.4566),
    Sketcher.Constraint("DistanceX", -1, 1, 66, 3, 133.2993),
    Sketcher.Constraint("DistanceY", 66, 3, -1, 1, 49.4472),
    Sketcher.Constraint("DistanceX", -1, 1, 67, 3, 131.8424),
    Sketcher.Constraint("DistanceY", 67, 3, -1, 1, 47.3666),
    Sketcher.Constraint("DistanceX", -1, 1, 68, 3, 129.9924),
    Sketcher.Constraint("DistanceY", 68, 3, -1, 1, 44.7466),
    Sketcher.Constraint("DistanceX", -1, 1, 69, 3, 128.5355),
    Sketcher.Constraint("DistanceX", -1, 1, 70, 3, 127.4524),
    Sketcher.Constraint("DistanceY", 70, 3, -1, 1, 38.4866),
    Sketcher.Constraint("DistanceX", -1, 1, 71, 3, 125.2984),
    Sketcher.Constraint("DistanceY", 71, 3, -1, 1, 37.1406),
    Sketcher.Constraint("DistanceX", -1, 1, 72, 3, 122.9924),
    Sketcher.Constraint("DistanceY", 72, 3, -1, 1, 34.4966),
    Sketcher.Constraint("DistanceX", -1, 1, 73, 3, 120.8384),
    Sketcher.Constraint("DistanceY", 73, 3, -1, 1, 33.1506),
    Sketcher.Constraint("DistanceX", -1, 1, 74, 3, 25.5324),
    Sketcher.Constraint("DistanceY", 74, 3, -1, 1, 58.5866),
    Sketcher.Constraint("DistanceX", -1, 1, 75, 3, 22.9924),
    Sketcher.Constraint("DistanceX", -1, 1, 76, 3, 20.4524),
    Sketcher.Constraint("DistanceX", -1, 1, 77, 3, 17.9124),
    Sketcher.Constraint("DistanceX", -1, 1, 78, 3, 121.7624),
    Sketcher.Constraint("DistanceY", 78, 3, -1, 1, 124.4716),
    Sketcher.Constraint("DistanceX", -1, 1, 80, 3, 115.7624),
    Sketcher.Constraint("DistanceY", 0, 2, -1, 1, 61.7466),
    Sketcher.Constraint("DistanceY", 1, 2, -1, 1, 61.7716),
])
pad1 = body.newObject("PartDesign::Pad", "Pad")
pad1.Profile = sketch1
pad1.Length = 1.6

# Sketch on XY plane
sketch2 = body.newObject("Sketcher::SketchObject", "Sketch001")
sketch2.AttachmentSupport = (doc.getObject("XY_Plane"), [""])
sketch2.MapMode = "FlatFace"
sketch2.AttachmentOffset = App.Placement(V(0, 0, 1.6), App.Rotation())
sketch2.addGeometry([
    Part.Circle(V(17.91, -58.59, 0), V(0, 0, 1), 0.5),  # 0
    Part.Circle(V(20.45, -58.59, 0), V(0, 0, 1), 0.5),  # 1
    Part.Circle(V(22.99, -58.59, 0), V(0, 0, 1), 0.5),  # 2
    Part.Circle(V(25.53, -58.59, 0), V(0, 0, 1), 0.5),  # 3
    Part.Circle(V(115.76, -124.47, 0), V(0, 0, 1), 0.38),  # 4
    Part.Circle(V(118.76, -124.47, 0), V(0, 0, 1), 0.38),  # 5
    Part.Circle(V(121.76, -124.47, 0), V(0, 0, 1), 0.38),  # 6
], False)
sketch2.addConstraint([
    Sketcher.Constraint("Equal", 0, 1),
    Sketcher.Constraint("Equal", 1, 2),
    Sketcher.Constraint("Equal", 2, 3),
    Sketcher.Constraint("Equal", 4, 5),
    Sketcher.Constraint("Equal", 5, 6),
    Sketcher.Constraint("Horizontal", 0, 3, 1, 3),
    Sketcher.Constraint("Horizontal", 1, 3, 2, 3),
    Sketcher.Constraint("Horizontal", 2, 3, 3, 3),
    Sketcher.Constraint("Horizontal", 4, 3, 5, 3),
    Sketcher.Constraint("Horizontal", 5, 3, 6, 3),
    Sketcher.Constraint("Diameter", 0, 1.0),
    Sketcher.Constraint("Diameter", 4, 0.762),
    Sketcher.Constraint("DistanceX", 4, 3, 5, 3, 3.0),
    Sketcher.Constraint("DistanceX", 5, 3, 6, 3, 3.0),
    Sketcher.Constraint("DistanceX", 0, 3, 1, 3, 2.54),
    Sketcher.Constraint("DistanceX", 1, 3, 2, 3, 2.54),
    Sketcher.Constraint("DistanceX", 2, 3, 3, 3, 2.54),
    Sketcher.Constraint("DistanceX", 3, 3, 4, 3, 90.23),
    Sketcher.Constraint("DistanceY", 4, 3, 3, 3, 65.885),
    Sketcher.Constraint("DistanceX", -1, 1, 0, 3, 17.9124),
    Sketcher.Constraint("DistanceY", 0, 3, -1, 1, 58.5866),
])
pocket1 = body.newObject("PartDesign::Pocket", "Pocket")
pocket1.Profile = sketch2
pocket1.Type = "ThroughAll"

doc.recompute()
